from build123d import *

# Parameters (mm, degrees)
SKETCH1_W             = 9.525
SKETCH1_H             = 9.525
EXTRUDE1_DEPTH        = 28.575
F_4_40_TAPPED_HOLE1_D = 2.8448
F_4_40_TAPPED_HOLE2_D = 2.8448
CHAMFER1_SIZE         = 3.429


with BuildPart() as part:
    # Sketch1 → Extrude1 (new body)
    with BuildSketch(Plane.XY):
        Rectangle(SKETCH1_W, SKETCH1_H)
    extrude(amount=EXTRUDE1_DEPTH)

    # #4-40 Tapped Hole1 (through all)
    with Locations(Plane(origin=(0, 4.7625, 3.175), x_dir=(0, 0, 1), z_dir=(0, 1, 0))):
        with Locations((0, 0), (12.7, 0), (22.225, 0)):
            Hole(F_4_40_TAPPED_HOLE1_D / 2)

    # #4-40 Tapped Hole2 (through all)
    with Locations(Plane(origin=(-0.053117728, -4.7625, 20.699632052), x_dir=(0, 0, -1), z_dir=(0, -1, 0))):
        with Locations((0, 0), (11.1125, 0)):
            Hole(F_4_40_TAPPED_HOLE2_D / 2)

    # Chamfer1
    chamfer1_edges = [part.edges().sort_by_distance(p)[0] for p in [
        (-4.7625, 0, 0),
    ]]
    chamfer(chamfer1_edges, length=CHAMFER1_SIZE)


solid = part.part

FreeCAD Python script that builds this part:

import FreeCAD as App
import Part
import Sketcher
Q = App.Units.Quantity


def edges_at(feature, points):
    """Names of the edges that pass closest to the given points."""
    edges = feature.Shape.Edges
    near = lambda p: min(range(len(edges)), key=lambda i: edges[i].distToShape(Part.Vertex(*p))[0])
    return sorted({f"Edge{near(p) + 1}" for p in points})


def add_polygon(sketch, points):
    """Adds a closed chain of lines whose ends are joined by coincident constraints."""
    first, n = sketch.GeometryCount, len(points)
    for a, b in zip(points, points[1:] + points[:1]):
        sketch.addGeometry(Part.LineSegment(App.Vector(*a, 0), App.Vector(*b, 0)), False)
    for i in range(n):
        sketch.addConstraint(Sketcher.Constraint("Coincident", first + i, 2, first + (i + 1) % n, 1))

doc = App.newDocument("Part")
body = doc.addObject("PartDesign::Body", "Body")

# Sketch on XY plane
sketch1 = body.newObject("Sketcher::SketchObject", "Sketch")
sketch1.AttachmentSupport = (doc.getObject("XY_Plane"), [""])
sketch1.MapMode = "FlatFace"
add_polygon(sketch1, [(-5, 5), (-5, -5), (5, -5), (5, 5)])  # lines 0-3
sketch1.addConstraint([
    Sketcher.Constraint("Vertical", 0),
    Sketcher.Constraint("Horizontal", 1),
    Sketcher.Constraint("Vertical", 2),
    Sketcher.Constraint("Horizontal", 3),
    Sketcher.Constraint("Symmetric", 0, 2, 2, 2, -1, 1),
    Sketcher.Constraint("Equal", 3, 0),
    Sketcher.Constraint("DistanceX", 1, 1, 1, 2, Q("0.375 in")),
])
pad1 = body.newObject("PartDesign::Pad", "Pad")
pad1.Profile = sketch1
pad1.Length = Q("1.125 in")

# Sketch on XZ plane
sketch2 = body.newObject("Sketcher::SketchObject", "Sketch001")
sketch2.AttachmentSupport = (doc.getObject("XZ_Plane"), [""])
sketch2.MapMode = "FlatFace"
sketch2.AttachmentOffset = App.Placement(App.Vector(0, 0, -0.1875 * 25.4), App.Rotation())
sketch2.addGeometry([
    Part.Circle(App.Vector(0, 3.2, 0), App.Vector(0, 0, 1), 1.4),
    Part.Circle(App.Vector(0, 15.9, 0), App.Vector(0, 0, 1), 1.4),
    Part.Circle(App.Vector(0, 25.4, 0), App.Vector(0, 0, 1), 1.4),
], False)
sketch2.addConstraint([
    Sketcher.Constraint("Equal", 0, 1),
    Sketcher.Constraint("Equal", 1, 2),
    Sketcher.Constraint("PointOnObject", 0, 3, -2),
    Sketcher.Constraint("PointOnObject", 1, 3, -2),
    Sketcher.Constraint("PointOnObject", 2, 3, -2),
    Sketcher.Constraint("Diameter", 0, Q("0.112 in")),
    Sketcher.Constraint("DistanceY", -1, 1, 2, 3, Q("1 in")),
    Sketcher.Constraint("DistanceY", 0, 3, 1, 3, Q("0.5 in")),
    Sketcher.Constraint("DistanceY", -1, 1, 0, 3, Q("0.125 in")),
])
doc.recompute()
hole = body.newObject("PartDesign::Hole", "Hole")
hole.Profile = sketch2
hole.ThreadType = "None"
hole.Diameter = Q("0.112 in")
hole.DepthType = "ThroughAll"
hole.Reversed = True

# Sketch on XZ plane
sketch3 = body.newObject("Sketcher::SketchObject", "Sketch002")
sketch3.AttachmentSupport = (doc.getObject("XZ_Plane"), [""])
sketch3.MapMode = "FlatFace"
sketch3.AttachmentOffset = App.Placement(App.Vector(0, 0, 0.1875 * 25.4), App.Rotation())
sketch3.addGeometry([
    Part.Circle(App.Vector(-0.1, 20.7, 0), App.Vector(0, 0, 1), 1.4),
    Part.Circle(App.Vector(-0.1, 9.6, 0), App.Vector(0, 0, 1), 1.4),
], False)
sketch3.addConstraint([
    Sketcher.Constraint("Equal", 0, 1),
    Sketcher.Constraint("Vertical", 0, 3, 1, 3),
    Sketcher.Constraint("Diameter", 0, Q("0.112 in")),
    Sketcher.Constraint("DistanceY", 1, 3, 0, 3, Q("0.4375 in")),
    Sketcher.Constraint("DistanceX", 0, 3, -1, 1, Q("0.053118 mm")),
    Sketcher.Constraint("DistanceY", -1, 1, 0, 3, Q("20.699632 mm")),
])
doc.recompute()
hole2 = body.newObject("PartDesign::Hole", "Hole001")
hole2.Profile = sketch3
hole2.ThreadType = "None"
hole2.Diameter = Q("0.112 in")
hole2.DepthType = "ThroughAll"
doc.recompute()

chamfer = body.newObject("PartDesign::Chamfer", "Chamfer")
chamfer.Base = (hole2, edges_at(hole2, [(-4.763, 0, 0)]))
chamfer.Size = Q("0.135 in")

doc.recompute()
